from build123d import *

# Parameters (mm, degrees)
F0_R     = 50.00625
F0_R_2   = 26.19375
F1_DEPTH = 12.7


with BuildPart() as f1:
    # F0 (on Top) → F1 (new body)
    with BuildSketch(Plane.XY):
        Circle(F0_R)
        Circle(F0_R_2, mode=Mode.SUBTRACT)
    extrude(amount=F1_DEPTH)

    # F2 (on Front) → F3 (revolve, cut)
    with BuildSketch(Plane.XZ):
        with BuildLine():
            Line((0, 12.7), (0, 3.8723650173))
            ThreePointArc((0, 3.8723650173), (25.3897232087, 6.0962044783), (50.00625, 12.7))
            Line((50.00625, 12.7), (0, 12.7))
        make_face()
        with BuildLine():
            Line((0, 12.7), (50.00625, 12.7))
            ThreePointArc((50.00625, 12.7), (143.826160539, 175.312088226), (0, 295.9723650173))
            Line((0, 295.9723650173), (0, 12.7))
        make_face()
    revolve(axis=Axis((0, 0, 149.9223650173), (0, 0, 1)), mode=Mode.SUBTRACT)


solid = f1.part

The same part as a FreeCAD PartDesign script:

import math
import FreeCAD as App
import Part
import Sketcher
from FreeCAD import Vector
Q = App.Units.Quantity

doc = App.newDocument("Part")
params = doc.addObject("Spreadsheet::Sheet", "Params")
for row, (alias, value) in enumerate([
    ("sketch1_diameter", "3.9375 in"),
    ("sketch1_diameter2", "2.0625 in"),
    ("pad1_length", "0.5 in"),
    ("sketch2_radius", "5.75 in"),
    ("groove_angle", "360 deg"),
], start=1):
    params.set(f"A{row}", alias)
    params.set(f"B{row}", "=" + value)
    params.setAlias(f"B{row}", alias)

body = doc.addObject("PartDesign::Body", "Body")

# Sketch on XY plane
sketch1 = body.newObject("Sketcher::SketchObject", "Sketch")
sketch1.AttachmentSupport = (doc.getObject("XY_Plane"), [""])
sketch1.MapMode = "FlatFace"
sketch1.addGeometry([
    Part.Circle(Vector(0, 0, 0), Vector(0, 0, 1), 50),
    Part.Circle(Vector(0, 0, 0), Vector(0, 0, 1), 26),
], False)
sketch1.addConstraint([
    Sketcher.Constraint("Coincident", 0, 3, -1, 1),
    Sketcher.Constraint("Coincident", 1, 3, -1, 1),
    Sketcher.Constraint("Diameter", 0, Q("3.9375 in")),
    Sketcher.Constraint("Diameter", 1, Q("2.0625 in")),
])
sketch1.setExpression("Constraints[2]", "Params.sketch1_diameter")
sketch1.setExpression("Constraints[3]", "Params.sketch1_diameter2")
pad1 = body.newObject("PartDesign::Pad", "Pad")
pad1.Profile = sketch1
pad1.setExpression("Length", "Params.pad1_length")

# Sketch on XZ plane
sketch2 = body.newObject("Sketcher::SketchObject", "Sketch001")
sketch2.AttachmentSupport = (doc.getObject("XZ_Plane"), [""])
sketch2.MapMode = "FlatFace"
sketch2.addGeometry([
    Part.ArcOfCircle(Part.Circle(Vector(0, 150, 0), Vector(0, 0, 1), 146), math.radians(-90), math.radians(90)),
    Part.LineSegment(Vector(0, 296, 0), Vector(0, 4, 0)),
], False)
sketch2.addConstraint([
    Sketcher.Constraint("Coincident", 0, 1, 1, 2),
    Sketcher.Constraint("Coincident", 1, 1, 0, 2),
    Sketcher.Constraint("Vertical", 1),
    Sketcher.Constraint("PointOnObject", 0, 3, -2),
    Sketcher.Constraint("PointOnObject", 0, 1, -2),
    Sketcher.Constraint("Radius", 0, Q("5.75 in")),
    Sketcher.Constraint("DistanceY", -1, 1, 0, 3, Q("149.922365 mm")),
])
sketch2.setExpression("Constraints[5]", "Params.sketch2_radius")
groove = body.newObject("PartDesign::Groove", "Groove")
groove.Profile = sketch2
groove.ReferenceAxis = (sketch2, ["V_Axis"])
groove.setExpression("Angle", "Params.groove_angle")

doc.recompute()
